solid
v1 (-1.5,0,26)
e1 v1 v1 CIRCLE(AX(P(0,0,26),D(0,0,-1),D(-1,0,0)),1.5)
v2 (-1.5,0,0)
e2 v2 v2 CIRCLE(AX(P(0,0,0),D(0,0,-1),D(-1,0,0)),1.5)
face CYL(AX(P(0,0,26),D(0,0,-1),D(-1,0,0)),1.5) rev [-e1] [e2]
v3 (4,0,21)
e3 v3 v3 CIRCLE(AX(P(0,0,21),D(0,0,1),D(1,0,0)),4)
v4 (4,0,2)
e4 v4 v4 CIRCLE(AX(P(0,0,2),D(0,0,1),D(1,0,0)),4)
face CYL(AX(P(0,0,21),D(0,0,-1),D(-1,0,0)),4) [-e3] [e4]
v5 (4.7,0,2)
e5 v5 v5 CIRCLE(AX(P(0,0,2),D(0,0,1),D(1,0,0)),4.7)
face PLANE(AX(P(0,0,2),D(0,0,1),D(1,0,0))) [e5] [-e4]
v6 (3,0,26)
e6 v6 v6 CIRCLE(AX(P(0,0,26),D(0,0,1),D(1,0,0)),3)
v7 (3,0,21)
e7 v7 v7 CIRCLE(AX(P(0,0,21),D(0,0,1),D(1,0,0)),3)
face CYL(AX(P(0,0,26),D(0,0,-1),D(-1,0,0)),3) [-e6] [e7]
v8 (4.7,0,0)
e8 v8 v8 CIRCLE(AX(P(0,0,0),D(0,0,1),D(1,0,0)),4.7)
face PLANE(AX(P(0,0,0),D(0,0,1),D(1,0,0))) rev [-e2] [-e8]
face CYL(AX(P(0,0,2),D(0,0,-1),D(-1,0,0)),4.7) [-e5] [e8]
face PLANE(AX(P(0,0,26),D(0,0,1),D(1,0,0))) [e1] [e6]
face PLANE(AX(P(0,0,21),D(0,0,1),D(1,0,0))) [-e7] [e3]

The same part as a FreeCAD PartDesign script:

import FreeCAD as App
import Part
import Sketcher
Q = App.Units.Quantity

doc = App.newDocument("Part")
body = doc.addObject("PartDesign::Body", "Body")

# Sketch on XY plane
sketch1 = doc.addObject("Sketcher::SketchObject", "Sketch")
body.addObject(sketch1)
sketch1.AttachmentSupport = (doc.XY_Plane, [""])
sketch1.MapMode = "FlatFace"
sketch1.addGeometry(Part.Circle(App.Vector(0, 0, 0), App.Vector(0, 0, 1), 4.7), False)
sketch1.addConstraint([
    Sketcher.Constraint("Coincident", 0, 3, -1, 1),
    Sketcher.Constraint("Diameter", 0, Q("9.4 mm")),
])
pad1 = doc.addObject("PartDesign::Pad", "Pad")
body.addObject(pad1)
pad1.Profile = sketch1
pad1.Length = 2

# Sketch on XY plane
sketch2 = doc.addObject("Sketcher::SketchObject", "Sketch001")
body.addObject(sketch2)
sketch2.AttachmentSupport = (doc.XY_Plane, [""])
sketch2.MapMode = "FlatFace"
sketch2.AttachmentOffset = App.Placement(App.Vector(0, 0, 2), App.Rotation())
sketch2.addGeometry(Part.Circle(App.Vector(0, 0, 0), App.Vector(0, 0, 1), 4), False)
sketch2.addConstraint([
    Sketcher.Constraint("Coincident", 0, 3, -1, 1),
    Sketcher.Constraint("Diameter", 0, Q("8 mm")),
])
pad2 = doc.addObject("PartDesign::Pad", "Pad001")
body.addObject(pad2)
pad2.Profile = sketch2
pad2.Length = 19

# Sketch on XY plane
sketch3 = doc.addObject("Sketcher::SketchObject", "Sketch002")
body.addObject(sketch3)
sketch3.AttachmentSupport = (doc.XY_Plane, [""])
sketch3.MapMode = "FlatFace"
sketch3.AttachmentOffset = App.Placement(App.Vector(0, 0, 21), App.Rotation())
sketch3.addGeometry(Part.Circle(App.Vector(0, 0, 0), App.Vector(0, 0, 1), 3), False)
sketch3.addConstraint([
    Sketcher.Constraint("Coincident", 0, 3, -1, 1),
    Sketcher.Constraint("Diameter", 0, Q("6 mm")),
])
pad3 = doc.addObject("PartDesign::Pad", "Pad002")
body.addObject(pad3)
pad3.Profile = sketch3
pad3.Length = 5

# Sketch on XY plane
sketch4 = doc.addObject("Sketcher::SketchObject", "Sketch003")
body.addObject(sketch4)
sketch4.AttachmentSupport = (doc.XY_Plane, [""])
sketch4.MapMode = "FlatFace"
sketch4.addGeometry(Part.Circle(App.Vector(0, 0, 0), App.Vector(0, 0, 1), 1.5), False)
sketch4.addConstraint([
    Sketcher.Constraint("Coincident", 0, 3, -1, 1),
    Sketcher.Constraint("Diameter", 0, Q("3 mm")),
])
pocket1 = doc.addObject("PartDesign::Pocket", "Pocket")
body.addObject(pocket1)
pocket1.Profile = sketch4
pocket1.Type = "ThroughAll"
pocket1.Reversed = True

doc.recompute()
